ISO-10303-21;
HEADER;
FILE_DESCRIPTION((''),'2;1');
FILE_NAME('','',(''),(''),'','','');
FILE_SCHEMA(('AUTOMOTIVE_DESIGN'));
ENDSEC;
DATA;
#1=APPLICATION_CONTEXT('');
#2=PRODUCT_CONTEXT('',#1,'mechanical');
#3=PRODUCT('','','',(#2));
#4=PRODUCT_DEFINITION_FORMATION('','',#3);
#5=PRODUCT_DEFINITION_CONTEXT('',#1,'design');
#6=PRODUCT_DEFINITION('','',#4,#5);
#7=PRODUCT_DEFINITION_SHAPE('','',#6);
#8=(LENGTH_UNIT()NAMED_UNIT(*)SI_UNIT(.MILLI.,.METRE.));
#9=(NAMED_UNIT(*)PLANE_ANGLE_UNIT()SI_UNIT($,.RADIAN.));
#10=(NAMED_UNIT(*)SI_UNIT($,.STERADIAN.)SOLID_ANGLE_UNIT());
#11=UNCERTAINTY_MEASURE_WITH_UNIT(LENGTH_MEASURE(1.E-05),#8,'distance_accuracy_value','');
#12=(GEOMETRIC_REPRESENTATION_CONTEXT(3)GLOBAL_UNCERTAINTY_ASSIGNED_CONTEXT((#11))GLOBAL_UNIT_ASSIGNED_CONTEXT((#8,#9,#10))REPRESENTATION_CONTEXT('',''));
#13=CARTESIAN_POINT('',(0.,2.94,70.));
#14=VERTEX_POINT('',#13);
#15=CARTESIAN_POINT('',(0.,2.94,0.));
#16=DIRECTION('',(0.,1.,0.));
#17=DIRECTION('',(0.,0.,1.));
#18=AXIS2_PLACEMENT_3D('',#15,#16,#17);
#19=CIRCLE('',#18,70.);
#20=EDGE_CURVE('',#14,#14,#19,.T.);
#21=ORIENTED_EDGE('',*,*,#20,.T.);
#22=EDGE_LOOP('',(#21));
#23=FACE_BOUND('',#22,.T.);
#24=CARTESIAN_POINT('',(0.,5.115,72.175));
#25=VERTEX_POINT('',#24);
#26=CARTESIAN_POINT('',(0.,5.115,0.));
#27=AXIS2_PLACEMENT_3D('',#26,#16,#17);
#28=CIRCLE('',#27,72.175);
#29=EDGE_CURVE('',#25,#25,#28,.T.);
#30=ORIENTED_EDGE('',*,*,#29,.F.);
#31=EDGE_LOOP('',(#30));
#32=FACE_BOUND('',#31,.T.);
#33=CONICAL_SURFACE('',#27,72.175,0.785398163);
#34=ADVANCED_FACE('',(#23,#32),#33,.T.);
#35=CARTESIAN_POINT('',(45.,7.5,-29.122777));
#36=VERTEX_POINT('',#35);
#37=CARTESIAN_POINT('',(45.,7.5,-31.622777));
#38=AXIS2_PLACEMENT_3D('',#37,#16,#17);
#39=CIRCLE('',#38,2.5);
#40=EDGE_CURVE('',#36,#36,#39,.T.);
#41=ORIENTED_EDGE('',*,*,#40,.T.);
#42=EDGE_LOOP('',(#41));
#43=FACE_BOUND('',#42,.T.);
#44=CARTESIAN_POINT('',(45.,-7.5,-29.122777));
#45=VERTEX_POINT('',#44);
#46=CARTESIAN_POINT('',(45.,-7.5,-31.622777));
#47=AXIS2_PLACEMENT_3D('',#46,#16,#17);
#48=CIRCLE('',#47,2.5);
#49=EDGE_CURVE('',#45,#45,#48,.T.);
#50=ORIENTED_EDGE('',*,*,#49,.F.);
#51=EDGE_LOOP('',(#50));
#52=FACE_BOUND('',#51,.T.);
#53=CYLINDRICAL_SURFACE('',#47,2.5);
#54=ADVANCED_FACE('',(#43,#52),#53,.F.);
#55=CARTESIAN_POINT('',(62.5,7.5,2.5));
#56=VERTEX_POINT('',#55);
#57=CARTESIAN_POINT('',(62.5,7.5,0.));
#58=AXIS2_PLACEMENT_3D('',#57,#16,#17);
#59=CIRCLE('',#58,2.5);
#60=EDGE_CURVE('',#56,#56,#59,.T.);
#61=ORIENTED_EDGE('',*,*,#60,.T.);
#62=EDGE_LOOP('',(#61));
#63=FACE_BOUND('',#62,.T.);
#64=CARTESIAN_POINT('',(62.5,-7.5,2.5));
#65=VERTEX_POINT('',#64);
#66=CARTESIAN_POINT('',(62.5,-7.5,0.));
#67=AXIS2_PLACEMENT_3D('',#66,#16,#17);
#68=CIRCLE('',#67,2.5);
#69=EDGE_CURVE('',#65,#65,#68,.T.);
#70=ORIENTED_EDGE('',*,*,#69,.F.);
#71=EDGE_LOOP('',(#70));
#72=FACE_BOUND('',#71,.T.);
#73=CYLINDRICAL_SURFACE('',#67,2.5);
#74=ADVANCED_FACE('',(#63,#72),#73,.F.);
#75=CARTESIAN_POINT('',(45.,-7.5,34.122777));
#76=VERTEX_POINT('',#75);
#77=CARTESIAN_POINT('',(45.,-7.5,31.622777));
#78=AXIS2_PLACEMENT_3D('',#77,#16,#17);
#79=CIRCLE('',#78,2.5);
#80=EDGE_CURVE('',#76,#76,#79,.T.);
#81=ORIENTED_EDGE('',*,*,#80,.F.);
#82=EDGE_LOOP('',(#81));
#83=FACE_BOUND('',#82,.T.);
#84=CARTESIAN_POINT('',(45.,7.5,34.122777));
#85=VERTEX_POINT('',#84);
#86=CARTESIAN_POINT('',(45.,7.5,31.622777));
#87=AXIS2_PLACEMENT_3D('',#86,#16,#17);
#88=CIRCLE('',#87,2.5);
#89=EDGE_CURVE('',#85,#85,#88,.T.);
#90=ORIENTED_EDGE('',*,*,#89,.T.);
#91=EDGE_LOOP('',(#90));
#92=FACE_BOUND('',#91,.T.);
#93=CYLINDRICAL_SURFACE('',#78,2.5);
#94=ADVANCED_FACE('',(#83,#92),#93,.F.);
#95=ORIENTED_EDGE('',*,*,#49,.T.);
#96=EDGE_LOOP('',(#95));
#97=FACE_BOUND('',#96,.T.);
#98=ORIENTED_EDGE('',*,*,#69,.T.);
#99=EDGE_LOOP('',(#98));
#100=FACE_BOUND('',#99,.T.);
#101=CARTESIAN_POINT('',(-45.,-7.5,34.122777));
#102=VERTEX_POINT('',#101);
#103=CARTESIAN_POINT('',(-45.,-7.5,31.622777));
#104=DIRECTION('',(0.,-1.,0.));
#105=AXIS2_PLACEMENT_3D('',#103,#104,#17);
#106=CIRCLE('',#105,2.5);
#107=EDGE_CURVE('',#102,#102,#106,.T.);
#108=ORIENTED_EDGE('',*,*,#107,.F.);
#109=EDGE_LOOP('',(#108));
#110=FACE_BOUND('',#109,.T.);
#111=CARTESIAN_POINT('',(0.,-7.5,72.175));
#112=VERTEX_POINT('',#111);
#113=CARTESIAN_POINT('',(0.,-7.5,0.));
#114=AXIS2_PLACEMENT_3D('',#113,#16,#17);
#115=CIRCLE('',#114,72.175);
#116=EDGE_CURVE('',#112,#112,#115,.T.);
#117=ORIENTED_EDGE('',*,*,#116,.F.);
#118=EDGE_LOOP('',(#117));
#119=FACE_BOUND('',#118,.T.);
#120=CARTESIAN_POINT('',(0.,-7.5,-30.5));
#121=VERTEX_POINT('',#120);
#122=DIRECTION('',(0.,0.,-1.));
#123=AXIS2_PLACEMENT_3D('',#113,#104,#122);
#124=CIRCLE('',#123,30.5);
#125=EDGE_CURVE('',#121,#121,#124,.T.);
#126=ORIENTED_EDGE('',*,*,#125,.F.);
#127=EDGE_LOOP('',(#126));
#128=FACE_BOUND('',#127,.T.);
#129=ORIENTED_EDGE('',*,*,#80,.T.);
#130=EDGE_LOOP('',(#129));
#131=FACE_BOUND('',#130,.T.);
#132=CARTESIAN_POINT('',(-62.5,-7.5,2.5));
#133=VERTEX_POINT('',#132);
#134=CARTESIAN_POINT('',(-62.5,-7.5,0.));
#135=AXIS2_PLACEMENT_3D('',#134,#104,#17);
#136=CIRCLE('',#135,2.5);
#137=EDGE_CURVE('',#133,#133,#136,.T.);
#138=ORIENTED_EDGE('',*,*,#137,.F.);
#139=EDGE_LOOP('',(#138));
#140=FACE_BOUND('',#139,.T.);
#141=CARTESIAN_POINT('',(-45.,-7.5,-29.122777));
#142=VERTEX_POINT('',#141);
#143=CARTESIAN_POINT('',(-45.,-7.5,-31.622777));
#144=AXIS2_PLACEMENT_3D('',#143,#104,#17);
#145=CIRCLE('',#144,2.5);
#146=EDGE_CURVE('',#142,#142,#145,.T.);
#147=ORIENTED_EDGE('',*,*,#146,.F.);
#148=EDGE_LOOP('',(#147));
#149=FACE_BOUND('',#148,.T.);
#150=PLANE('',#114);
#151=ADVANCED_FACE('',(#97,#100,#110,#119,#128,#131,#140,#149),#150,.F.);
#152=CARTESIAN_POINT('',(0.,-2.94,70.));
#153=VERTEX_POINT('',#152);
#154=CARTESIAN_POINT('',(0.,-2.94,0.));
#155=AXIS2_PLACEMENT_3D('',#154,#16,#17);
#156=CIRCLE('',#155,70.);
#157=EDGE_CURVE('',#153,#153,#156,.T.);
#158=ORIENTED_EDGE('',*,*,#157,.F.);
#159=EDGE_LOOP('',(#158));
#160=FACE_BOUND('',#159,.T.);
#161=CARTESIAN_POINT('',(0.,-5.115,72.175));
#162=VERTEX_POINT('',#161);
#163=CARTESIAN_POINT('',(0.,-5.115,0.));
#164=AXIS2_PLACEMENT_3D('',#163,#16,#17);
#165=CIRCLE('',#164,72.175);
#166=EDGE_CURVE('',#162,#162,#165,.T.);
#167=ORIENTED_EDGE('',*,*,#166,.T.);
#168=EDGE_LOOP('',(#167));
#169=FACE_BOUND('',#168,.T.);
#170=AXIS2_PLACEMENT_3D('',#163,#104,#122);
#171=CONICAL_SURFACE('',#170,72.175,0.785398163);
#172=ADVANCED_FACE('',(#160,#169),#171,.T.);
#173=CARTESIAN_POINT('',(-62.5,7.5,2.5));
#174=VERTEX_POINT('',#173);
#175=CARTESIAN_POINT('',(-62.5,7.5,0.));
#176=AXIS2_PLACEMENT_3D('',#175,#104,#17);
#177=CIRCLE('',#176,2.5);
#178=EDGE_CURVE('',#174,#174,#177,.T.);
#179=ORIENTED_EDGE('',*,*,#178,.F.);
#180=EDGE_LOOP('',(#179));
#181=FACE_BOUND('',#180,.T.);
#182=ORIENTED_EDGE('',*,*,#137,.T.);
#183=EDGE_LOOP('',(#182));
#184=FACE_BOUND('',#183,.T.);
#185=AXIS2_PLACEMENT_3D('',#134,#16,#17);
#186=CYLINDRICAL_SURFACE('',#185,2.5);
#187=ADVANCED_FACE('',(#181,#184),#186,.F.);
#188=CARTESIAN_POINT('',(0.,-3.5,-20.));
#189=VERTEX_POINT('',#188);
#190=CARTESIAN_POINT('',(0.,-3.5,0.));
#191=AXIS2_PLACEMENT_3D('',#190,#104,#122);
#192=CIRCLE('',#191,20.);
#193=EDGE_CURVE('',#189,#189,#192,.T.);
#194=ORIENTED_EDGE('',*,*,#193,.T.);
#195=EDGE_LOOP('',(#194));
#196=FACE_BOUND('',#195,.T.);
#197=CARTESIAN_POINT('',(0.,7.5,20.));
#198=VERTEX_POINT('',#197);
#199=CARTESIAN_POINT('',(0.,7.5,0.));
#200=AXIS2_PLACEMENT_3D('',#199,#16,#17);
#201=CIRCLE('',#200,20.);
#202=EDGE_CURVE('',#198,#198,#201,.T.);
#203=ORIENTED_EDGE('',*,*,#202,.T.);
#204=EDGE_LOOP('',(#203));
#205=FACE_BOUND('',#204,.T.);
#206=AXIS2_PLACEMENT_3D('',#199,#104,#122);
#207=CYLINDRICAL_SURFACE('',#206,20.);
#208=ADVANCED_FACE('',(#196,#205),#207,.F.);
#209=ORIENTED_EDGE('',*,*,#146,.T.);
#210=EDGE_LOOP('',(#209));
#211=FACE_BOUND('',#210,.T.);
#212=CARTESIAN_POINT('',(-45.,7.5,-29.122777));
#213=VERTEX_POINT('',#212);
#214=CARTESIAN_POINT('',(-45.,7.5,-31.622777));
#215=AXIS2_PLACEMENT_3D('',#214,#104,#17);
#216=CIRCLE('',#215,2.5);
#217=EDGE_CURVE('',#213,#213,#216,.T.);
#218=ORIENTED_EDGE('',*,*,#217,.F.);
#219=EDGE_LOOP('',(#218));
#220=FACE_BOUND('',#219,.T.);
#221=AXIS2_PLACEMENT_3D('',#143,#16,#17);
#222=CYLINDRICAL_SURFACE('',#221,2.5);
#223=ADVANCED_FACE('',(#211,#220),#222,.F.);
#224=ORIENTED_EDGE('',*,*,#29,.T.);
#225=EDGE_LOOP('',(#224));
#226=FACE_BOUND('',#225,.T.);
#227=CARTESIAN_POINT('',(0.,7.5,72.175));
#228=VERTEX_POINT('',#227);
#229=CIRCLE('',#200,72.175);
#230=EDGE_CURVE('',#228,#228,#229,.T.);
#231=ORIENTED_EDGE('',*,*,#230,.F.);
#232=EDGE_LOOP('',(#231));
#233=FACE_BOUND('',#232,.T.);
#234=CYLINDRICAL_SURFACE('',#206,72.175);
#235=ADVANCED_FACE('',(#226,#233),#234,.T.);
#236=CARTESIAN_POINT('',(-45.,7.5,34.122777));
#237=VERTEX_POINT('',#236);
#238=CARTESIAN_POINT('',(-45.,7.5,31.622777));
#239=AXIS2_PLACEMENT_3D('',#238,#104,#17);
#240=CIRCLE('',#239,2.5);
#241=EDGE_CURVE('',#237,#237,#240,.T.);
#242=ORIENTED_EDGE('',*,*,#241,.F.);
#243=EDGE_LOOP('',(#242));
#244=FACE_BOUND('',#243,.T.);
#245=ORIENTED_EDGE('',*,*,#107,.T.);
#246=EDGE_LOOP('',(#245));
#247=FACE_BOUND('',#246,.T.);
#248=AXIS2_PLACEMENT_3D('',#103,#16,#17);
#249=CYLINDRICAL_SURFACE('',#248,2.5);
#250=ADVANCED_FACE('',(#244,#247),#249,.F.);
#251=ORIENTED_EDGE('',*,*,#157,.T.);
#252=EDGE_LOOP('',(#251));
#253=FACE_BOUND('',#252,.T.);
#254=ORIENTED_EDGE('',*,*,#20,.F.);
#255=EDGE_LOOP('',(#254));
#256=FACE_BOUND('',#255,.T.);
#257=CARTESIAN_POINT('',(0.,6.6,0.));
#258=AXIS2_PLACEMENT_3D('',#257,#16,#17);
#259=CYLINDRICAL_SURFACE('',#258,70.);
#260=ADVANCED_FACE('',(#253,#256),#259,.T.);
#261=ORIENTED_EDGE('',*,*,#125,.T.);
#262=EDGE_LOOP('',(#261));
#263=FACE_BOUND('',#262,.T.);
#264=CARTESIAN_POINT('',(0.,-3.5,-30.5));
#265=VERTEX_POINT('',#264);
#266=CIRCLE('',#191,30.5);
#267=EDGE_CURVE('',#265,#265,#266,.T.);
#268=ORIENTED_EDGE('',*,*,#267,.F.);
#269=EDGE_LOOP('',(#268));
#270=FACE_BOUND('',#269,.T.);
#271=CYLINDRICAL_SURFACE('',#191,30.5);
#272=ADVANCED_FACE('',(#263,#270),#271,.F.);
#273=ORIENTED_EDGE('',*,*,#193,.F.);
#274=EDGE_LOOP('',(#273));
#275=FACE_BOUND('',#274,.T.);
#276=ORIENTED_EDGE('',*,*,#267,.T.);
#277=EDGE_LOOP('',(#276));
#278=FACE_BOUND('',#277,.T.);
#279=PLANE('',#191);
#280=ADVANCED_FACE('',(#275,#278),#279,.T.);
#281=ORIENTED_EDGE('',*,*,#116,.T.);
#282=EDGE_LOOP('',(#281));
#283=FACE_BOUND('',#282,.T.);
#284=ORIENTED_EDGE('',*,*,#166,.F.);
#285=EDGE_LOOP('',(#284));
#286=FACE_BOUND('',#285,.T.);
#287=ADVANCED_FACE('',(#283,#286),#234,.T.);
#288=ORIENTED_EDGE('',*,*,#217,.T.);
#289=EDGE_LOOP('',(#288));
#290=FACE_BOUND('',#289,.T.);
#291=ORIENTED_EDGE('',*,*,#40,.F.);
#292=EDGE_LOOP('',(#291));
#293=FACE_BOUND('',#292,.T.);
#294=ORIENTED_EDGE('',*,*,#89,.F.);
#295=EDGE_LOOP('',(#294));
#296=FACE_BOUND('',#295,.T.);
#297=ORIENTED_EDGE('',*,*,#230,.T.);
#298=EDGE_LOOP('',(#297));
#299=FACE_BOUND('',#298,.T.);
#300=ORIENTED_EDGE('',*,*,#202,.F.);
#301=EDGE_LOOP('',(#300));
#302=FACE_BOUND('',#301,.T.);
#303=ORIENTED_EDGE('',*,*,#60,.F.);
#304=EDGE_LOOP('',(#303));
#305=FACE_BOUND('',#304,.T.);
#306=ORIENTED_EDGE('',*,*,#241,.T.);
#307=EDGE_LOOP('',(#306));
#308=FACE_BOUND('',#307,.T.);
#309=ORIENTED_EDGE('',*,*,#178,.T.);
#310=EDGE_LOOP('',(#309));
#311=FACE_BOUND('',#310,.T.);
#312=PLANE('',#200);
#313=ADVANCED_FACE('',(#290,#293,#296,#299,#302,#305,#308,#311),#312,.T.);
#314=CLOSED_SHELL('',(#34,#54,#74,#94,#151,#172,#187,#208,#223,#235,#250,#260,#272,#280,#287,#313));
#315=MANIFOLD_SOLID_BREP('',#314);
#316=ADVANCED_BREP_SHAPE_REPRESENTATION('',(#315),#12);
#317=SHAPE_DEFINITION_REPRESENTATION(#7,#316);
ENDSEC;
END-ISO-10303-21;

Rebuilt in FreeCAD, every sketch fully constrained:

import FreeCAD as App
import Part
import Sketcher


def add_polygon(sketch, points):
    """Adds a closed chain of lines whose ends are joined by coincident constraints."""
    first, n = sketch.GeometryCount, len(points)
    for a, b in zip(points, points[1:] + points[:1]):
        sketch.addGeometry(Part.LineSegment(App.Vector(*a, 0), App.Vector(*b, 0)), False)
    for i in range(n):
        sketch.addConstraint(Sketcher.Constraint("Coincident", first + i, 2, first + (i + 1) % n, 1))

doc = App.newDocument("Part")
body = doc.addObject("PartDesign::Body", "Body")

sketch1 = doc.addObject("Sketcher::SketchObject", "Sketch")
body.addObject(sketch1)
sketch1.AttachmentSupport = (doc.XZ_Plane, [""])
sketch1.MapMode = "FlatFace"
sketch1.addGeometry(Part.Circle(App.Vector(0, 0, 0), App.Vector(0, 0, 1), 72.175), False)
sketch1.addGeometry(Part.Circle(App.Vector(0, 0, 0), App.Vector(0, 0, 1), 20), False)
sketch1.addConstraint(Sketcher.Constraint("Coincident", 0, 3, -1, 1))
sketch1.addConstraint(Sketcher.Constraint("Coincident", 1, 3, -1, 1))
sketch1.addConstraint(Sketcher.Constraint("Diameter", 1, 40.0))
sketch1.addConstraint(Sketcher.Constraint("Diameter", 0, 144.35))
pad1 = doc.addObject("PartDesign::Pad", "Pad")
body.addObject(pad1)
pad1.Profile = sketch1
pad1.Length = 15
pad1.Midplane = True

sketch2 = doc.addObject("Sketcher::SketchObject", "Sketch001")
body.addObject(sketch2)
sketch2.AttachmentSupport = (doc.XY_Plane, [""])
sketch2.MapMode = "FlatFace"
add_polygon(sketch2, [(72.175, -5.115), (72.175, 5.115), (70, 2.94), (70, -2.94)])
sketch2.addConstraint(Sketcher.Constraint("Vertical", 0))
sketch2.addConstraint(Sketcher.Constraint("Vertical", 2))
sketch2.addConstraint(Sketcher.Constraint("Perpendicular", 1, 3))
sketch2.addConstraint(Sketcher.Constraint("Equal", 1, 3))
sketch2.addConstraint(Sketcher.Constraint("DistanceX", -1, 1, 1, 2, 70.0))
sketch2.addConstraint(Sketcher.Constraint("DistanceY", 0, 1, 0, 2, 10.23))
sketch2.addConstraint(Sketcher.Constraint("DistanceY", 2, 2, 2, 1, 5.88))
sketch2.addConstraint(Sketcher.Constraint("DistanceY", -1, 1, 1, 2, 2.94))
groove = doc.addObject("PartDesign::Groove", "Groove")
body.addObject(groove)
groove.Profile = sketch2
groove.ReferenceAxis = (sketch2, ["V_Axis"])
groove.Angle = 360

sketch3 = doc.addObject("Sketcher::SketchObject", "Sketch002")
body.addObject(sketch3)
sketch3.AttachmentSupport = (doc.XZ_Plane, [""])
sketch3.MapMode = "FlatFace"
sketch3.AttachmentOffset = App.Placement(App.Vector(0, 0, 7.5), App.Rotation())
sketch3.addGeometry(Part.Circle(App.Vector(0, 0, 0), App.Vector(0, 0, 1), 30.5), False)
sketch3.addConstraint(Sketcher.Constraint("Coincident", 0, 3, -1, 1))
sketch3.addConstraint(Sketcher.Constraint("Diameter", 0, 61.0))
pocket1 = doc.addObject("PartDesign::Pocket", "Pocket")
body.addObject(pocket1)
pocket1.Profile = sketch3
pocket1.Length = 4

sketch4 = doc.addObject("Sketcher::SketchObject", "Sketch003")
body.addObject(sketch4)
sketch4.AttachmentSupport = (doc.XZ_Plane, [""])
sketch4.MapMode = "FlatFace"
sketch4.AttachmentOffset = App.Placement(App.Vector(0, 0, -7.5), App.Rotation())
sketch4.addGeometry(Part.Circle(App.Vector(62.5, 0, 0), App.Vector(0, 0, 1), 2.5), False)
sketch4.addGeometry(Part.Circle(App.Vector(45, -31.622777, 0), App.Vector(0, 0, 1), 2.5), False)
sketch4.addGeometry(Part.Circle(App.Vector(45, 31.622777, 0), App.Vector(0, 0, 1), 2.5), False)
sketch4.addConstraint(Sketcher.Constraint("Equal", 0, 1))
sketch4.addConstraint(Sketcher.Constraint("Equal", 1, 2))
sketch4.addConstraint(Sketcher.Constraint("Symmetric", 1, 3, 2, 3, -1))
sketch4.addConstraint(Sketcher.Constraint("PointOnObject", 0, 3, -1))
sketch4.addConstraint(Sketcher.Constraint("Diameter", 0, 5.0))
sketch4.addConstraint(Sketcher.Constraint("DistanceX", -1, 1, 1, 3, 45.0))
sketch4.addConstraint(Sketcher.Constraint("DistanceX", -1, 1, 0, 3, 62.5))
sketch4.addConstraint(Sketcher.Constraint("DistanceY", 1, 3, -1, 1, 31.622777))
pocket2 = doc.addObject("PartDesign::Pocket", "Pocket001")
body.addObject(pocket2)
pocket2.Profile = sketch4
pocket2.Type = "ThroughAll"
pocket2.Reversed = True
doc.recompute()

mirrored = doc.addObject("PartDesign::Mirrored", "Mirrored")
body.addObject(mirrored)
mirrored.Originals = [pocket2]
mirrored.MirrorPlane = (doc.YZ_Plane, [""])
body.Tip = mirrored

doc.recompute()
